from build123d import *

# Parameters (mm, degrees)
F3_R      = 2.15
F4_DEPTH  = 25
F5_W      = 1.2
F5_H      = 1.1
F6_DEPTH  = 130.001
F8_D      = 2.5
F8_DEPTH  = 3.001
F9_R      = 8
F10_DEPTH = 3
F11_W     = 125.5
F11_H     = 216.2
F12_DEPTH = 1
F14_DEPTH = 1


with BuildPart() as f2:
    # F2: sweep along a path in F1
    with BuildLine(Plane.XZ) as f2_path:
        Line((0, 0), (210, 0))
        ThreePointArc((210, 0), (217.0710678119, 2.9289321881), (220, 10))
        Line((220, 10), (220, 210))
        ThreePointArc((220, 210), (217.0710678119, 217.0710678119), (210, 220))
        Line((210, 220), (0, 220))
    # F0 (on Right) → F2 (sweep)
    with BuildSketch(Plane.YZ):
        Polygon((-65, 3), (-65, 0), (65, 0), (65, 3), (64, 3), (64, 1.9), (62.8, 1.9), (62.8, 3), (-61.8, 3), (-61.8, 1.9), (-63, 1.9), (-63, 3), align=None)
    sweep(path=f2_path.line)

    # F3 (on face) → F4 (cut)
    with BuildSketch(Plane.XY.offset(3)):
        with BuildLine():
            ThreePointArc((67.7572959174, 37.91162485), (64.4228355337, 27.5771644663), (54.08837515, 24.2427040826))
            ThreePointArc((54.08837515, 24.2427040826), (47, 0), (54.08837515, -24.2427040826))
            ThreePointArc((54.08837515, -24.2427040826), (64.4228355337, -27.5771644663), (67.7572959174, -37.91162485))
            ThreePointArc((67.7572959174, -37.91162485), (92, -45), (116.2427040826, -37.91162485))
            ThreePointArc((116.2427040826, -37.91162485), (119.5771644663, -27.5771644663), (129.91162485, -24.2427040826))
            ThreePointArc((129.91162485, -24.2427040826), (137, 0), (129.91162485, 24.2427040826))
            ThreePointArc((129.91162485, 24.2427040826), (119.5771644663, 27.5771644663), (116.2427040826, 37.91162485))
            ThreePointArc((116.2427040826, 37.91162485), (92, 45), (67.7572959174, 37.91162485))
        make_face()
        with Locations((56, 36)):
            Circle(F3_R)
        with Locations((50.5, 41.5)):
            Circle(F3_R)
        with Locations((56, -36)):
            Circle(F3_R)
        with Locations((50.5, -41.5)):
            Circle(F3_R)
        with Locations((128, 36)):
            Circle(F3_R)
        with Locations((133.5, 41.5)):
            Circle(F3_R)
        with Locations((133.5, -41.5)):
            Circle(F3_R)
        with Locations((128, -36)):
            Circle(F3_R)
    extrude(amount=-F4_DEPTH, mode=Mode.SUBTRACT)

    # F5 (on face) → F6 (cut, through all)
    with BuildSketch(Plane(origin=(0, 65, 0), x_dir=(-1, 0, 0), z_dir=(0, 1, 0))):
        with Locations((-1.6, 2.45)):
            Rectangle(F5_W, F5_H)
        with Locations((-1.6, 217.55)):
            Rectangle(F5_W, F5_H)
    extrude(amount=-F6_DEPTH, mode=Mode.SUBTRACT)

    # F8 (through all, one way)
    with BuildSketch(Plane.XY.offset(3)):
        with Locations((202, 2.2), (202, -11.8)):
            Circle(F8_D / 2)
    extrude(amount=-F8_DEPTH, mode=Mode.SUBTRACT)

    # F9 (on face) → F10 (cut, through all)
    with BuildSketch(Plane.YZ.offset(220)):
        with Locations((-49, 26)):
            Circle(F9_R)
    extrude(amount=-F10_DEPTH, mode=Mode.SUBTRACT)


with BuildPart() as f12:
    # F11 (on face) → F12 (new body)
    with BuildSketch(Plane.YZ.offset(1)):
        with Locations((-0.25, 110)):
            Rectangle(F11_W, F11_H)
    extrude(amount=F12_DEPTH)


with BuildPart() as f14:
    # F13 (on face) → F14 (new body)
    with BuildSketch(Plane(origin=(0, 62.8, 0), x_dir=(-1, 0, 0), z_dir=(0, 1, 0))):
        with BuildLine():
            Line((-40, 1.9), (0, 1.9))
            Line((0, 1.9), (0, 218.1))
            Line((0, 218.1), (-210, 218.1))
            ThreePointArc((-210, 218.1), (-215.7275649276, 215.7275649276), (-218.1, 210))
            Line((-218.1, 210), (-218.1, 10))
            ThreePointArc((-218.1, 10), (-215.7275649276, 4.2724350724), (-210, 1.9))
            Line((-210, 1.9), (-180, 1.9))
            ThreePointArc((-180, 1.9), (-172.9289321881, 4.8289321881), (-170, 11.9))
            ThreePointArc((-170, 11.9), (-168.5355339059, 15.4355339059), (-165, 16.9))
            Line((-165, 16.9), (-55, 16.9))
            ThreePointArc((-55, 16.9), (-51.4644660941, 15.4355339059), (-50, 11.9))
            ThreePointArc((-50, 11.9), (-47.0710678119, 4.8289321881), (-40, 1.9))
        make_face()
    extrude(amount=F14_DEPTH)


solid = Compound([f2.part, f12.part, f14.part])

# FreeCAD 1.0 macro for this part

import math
import FreeCAD as App
import Part
import Sketcher

V = App.Vector
Q = App.Units.Quantity


def add_polygon(sketch, points):
    """Adds a closed chain of lines whose ends are joined by coincident constraints."""
    first, n = sketch.GeometryCount, len(points)
    for a, b in zip(points, points[1:] + points[:1]):
        sketch.addGeometry(Part.LineSegment(App.Vector(*a, 0), App.Vector(*b, 0)), False)
    for i in range(n):
        sketch.addConstraint(Sketcher.Constraint("Coincident", first + i, 2, first + (i + 1) % n, 1))

doc = App.newDocument("Part")
body = doc.addObject("PartDesign::Body", "Body")

# Sketch on YZ plane
sketch1 = doc.addObject("Sketcher::SketchObject", "Sketch")
body.addObject(sketch1)
sketch1.AttachmentSupport = (doc.YZ_Plane, [""])
sketch1.MapMode = "FlatFace"
add_polygon(sketch1, [(-65, 3), (-65, 0), (65, 0), (65, 3), (64, 3), (64, 1.9), (62.8, 1.9), (62.8, 3), (-61.8, 3), (-61.8, 1.9), (-63, 1.9), (-63, 3)])  # lines 0-11
sketch1.addConstraint([
    Sketcher.Constraint("Vertical", 0),
    Sketcher.Constraint("Horizontal", 1),
    Sketcher.Constraint("Vertical", 2),
    Sketcher.Constraint("Horizontal", 3),
    Sketcher.Constraint("Vertical", 4),
    Sketcher.Constraint("Horizontal", 5),
    Sketcher.Constraint("Vertical", 6),
    Sketcher.Constraint("Horizontal", 7),
    Sketcher.Constraint("Vertical", 8),
    Sketcher.Constraint("Horizontal", 9),
    Sketcher.Constraint("Vertical", 10),
    Sketcher.Constraint("Horizontal", 11),
    Sketcher.Constraint("Symmetric", 0, 2, 1, 2, -1, 1),
    Sketcher.Constraint("Horizontal", 3, 2, 6, 2),
    Sketcher.Constraint("Horizontal", 5, 2, 8, 2),
    Sketcher.Constraint("Horizontal", 7, 2, 10, 2),
    Sketcher.Constraint("Equal", 5, 9),
    Sketcher.Constraint("DistanceX", 1, 1, 1, 2, Q("130 mm")),
    Sketcher.Constraint("DistanceX", 3, 2, 3, 1, Q("1 mm")),
    Sketcher.Constraint("DistanceX", 11, 2, 11, 1, Q("2 mm")),
    Sketcher.Constraint("DistanceY", 0, 2, 0, 1, Q("3 mm")),
    Sketcher.Constraint("DistanceX", 5, 2, 5, 1, Q("1.2 mm")),
    Sketcher.Constraint("DistanceY", 4, 2, 4, 1, Q("1.1 mm")),
])

# Sketch on XZ plane
sketch2 = doc.addObject("Sketcher::SketchObject", "Sketch001")
body.addObject(sketch2)
sketch2.AttachmentSupport = (doc.XZ_Plane, [""])
sketch2.MapMode = "FlatFace"
sketch2.addGeometry([
    Part.LineSegment(V(0, 0, 0), V(210, 0, 0)),  # 0
    Part.ArcOfCircle(Part.Circle(V(210, 10, 0), V(0, 0, 1), 10), math.radians(-90), math.radians(0)),  # 1
    Part.LineSegment(V(220, 10, 0), V(220, 210, 0)),  # 2
    Part.ArcOfCircle(Part.Circle(V(210, 210, 0), V(0, 0, 1), 10), math.radians(0), math.radians(90)),  # 3
    Part.LineSegment(V(210, 220, 0), V(0, 220, 0)),  # 4
], False)
sketch2.addConstraint([
    Sketcher.Constraint("Tangent", 0, 2, 1, 1),
    Sketcher.Constraint("Tangent", 1, 2, 2, 1),
    Sketcher.Constraint("Tangent", 2, 2, 3, 1),
    Sketcher.Constraint("Tangent", 3, 2, 4, 1),
    Sketcher.Constraint("Horizontal", 0),
    Sketcher.Constraint("Vertical", 2),
    Sketcher.Constraint("Horizontal", 4),
    Sketcher.Constraint("Coincident", 0, 1, -1, 1),
    Sketcher.Constraint("Equal", 1, 3),
    Sketcher.Constraint("PointOnObject", 4, 2, -2),
    Sketcher.Constraint("Radius", 1, Q("10 mm")),
    Sketcher.Constraint("DistanceX", 0, 1, 0, 2, Q("210 mm")),
    Sketcher.Constraint("DistanceY", 2, 1, 2, 2, Q("200 mm")),
])
doc.recompute()

additivepipe = doc.addObject("PartDesign::AdditivePipe", "AdditivePipe")
body.addObject(additivepipe)
additivepipe.Profile = sketch1
additivepipe.Spine = (sketch2, ["Edge1", "Edge2", "Edge3", "Edge4", "Edge5"])

# Sketch on XY plane
sketch3 = doc.addObject("Sketcher::SketchObject", "Sketch002")
body.addObject(sketch3)
sketch3.AttachmentSupport = (doc.XY_Plane, [""])
sketch3.MapMode = "FlatFace"
sketch3.AttachmentOffset = App.Placement(V(0, 0, 3), App.Rotation())
sketch3.addGeometry([
    Part.ArcOfCircle(Part.Circle(V(56, 36, 0), V(0, 0, 1), 11.911688), math.radians(-99.234939), math.radians(9.234939)),  # 0
    Part.ArcOfCircle(Part.Circle(V(92, 0, 0), V(0, 0, 1), 45), math.radians(147.402994), math.radians(212.597006)),  # 1
    Part.ArcOfCircle(Part.Circle(V(56, -36, 0), V(0, 0, 1), 11.911688), math.radians(-9.234939), math.radians(99.234939)),  # 2
    Part.ArcOfCircle(Part.Circle(V(92, 0, 0), V(0, 0, 1), 45), math.radians(-122.597006), math.radians(-57.402994)),  # 3
    Part.ArcOfCircle(Part.Circle(V(128, -36, 0), V(0, 0, 1), 11.911688), math.radians(80.765061), math.radians(189.234939)),  # 4
    Part.ArcOfCircle(Part.Circle(V(92, 0, 0), V(0, 0, 1), 45), math.radians(-32.597006), math.radians(32.597006)),  # 5
    Part.ArcOfCircle(Part.Circle(V(128, 36, 0), V(0, 0, 1), 11.911688), math.radians(170.765061), math.radians(279.234939)),  # 6
    Part.ArcOfCircle(Part.Circle(V(92, 0, 0), V(0, 0, 1), 45), math.radians(57.402994), math.radians(122.597006)),  # 7
    Part.Circle(V(56, 36, 0), V(0, 0, 1), 2.15),  # 8
    Part.Circle(V(50.5, 41.5, 0), V(0, 0, 1), 2.15),  # 9
    Part.Circle(V(56, -36, 0), V(0, 0, 1), 2.15),  # 10
    Part.Circle(V(50.5, -41.5, 0), V(0, 0, 1), 2.15),  # 11
    Part.Circle(V(128, 36, 0), V(0, 0, 1), 2.15),  # 12
    Part.Circle(V(133.5, 41.5, 0), V(0, 0, 1), 2.15),  # 13
    Part.Circle(V(133.5, -41.5, 0), V(0, 0, 1), 2.15),  # 14
    Part.Circle(V(128, -36, 0), V(0, 0, 1), 2.15),  # 15
], False)
sketch3.addConstraint([
    Sketcher.Constraint("Coincident", 0, 1, 1, 1),
    Sketcher.Constraint("Coincident", 1, 2, 2, 2),
    Sketcher.Constraint("Coincident", 2, 1, 3, 1),
    Sketcher.Constraint("Coincident", 3, 2, 4, 2),
    Sketcher.Constraint("Coincident", 4, 1, 5, 1),
    Sketcher.Constraint("Coincident", 5, 2, 6, 2),
    Sketcher.Constraint("Coincident", 6, 1, 7, 1),
    Sketcher.Constraint("Coincident", 7, 2, 0, 2),
    Sketcher.Constraint("Coincident", 3, 3, 1, 3),
    Sketcher.Constraint("Coincident", 5, 3, 1, 3),
    Sketcher.Constraint("Coincident", 7, 3, 1, 3),
    Sketcher.Constraint("Coincident", 8, 3, 0, 3),
    Sketcher.Constraint("Coincident", 10, 3, 2, 3),
    Sketcher.Constraint("Coincident", 12, 3, 6, 3),
    Sketcher.Constraint("Coincident", 15, 3, 4, 3),
    Sketcher.Constraint("Equal", 0, 2),
    Sketcher.Constraint("Equal", 1, 3),
    Sketcher.Constraint("Equal", 2, 4),
    Sketcher.Constraint("Equal", 3, 5),
    Sketcher.Constraint("Equal", 4, 6),
    Sketcher.Constraint("Equal", 5, 7),
    Sketcher.Constraint("Equal", 8, 9),
    Sketcher.Constraint("Equal", 9, 10),
    Sketcher.Constraint("Equal", 10, 11),
    Sketcher.Constraint("Equal", 11, 12),
    Sketcher.Constraint("Equal", 12, 13),
    Sketcher.Constraint("Equal", 13, 14),
    Sketcher.Constraint("Equal", 14, 15),
    Sketcher.Constraint("Symmetric", 0, 3, 2, 3, -1),
    Sketcher.Constraint("Symmetric", 4, 3, 6, 3, -1),
    Sketcher.Constraint("Symmetric", 9, 3, 11, 3, -1),
    Sketcher.Constraint("Symmetric", 13, 3, 14, 3, -1),
    Sketcher.Constraint("PointOnObject", 1, 3, -1),
    Sketcher.Constraint("Horizontal", 2, 3, 4, 3),
    Sketcher.Constraint("Horizontal", 9, 3, 13, 3),
    Sketcher.Constraint("Horizontal", 2, 1, 3, 2),
    Sketcher.Constraint("Radius", 1, Q("45 mm")),
    Sketcher.Constraint("Diameter", 8, Q("4.3 mm")),
    Sketcher.Constraint("DistanceX", -1, 1, 0, 3, Q("56 mm")),
    Sketcher.Constraint("DistanceY", -1, 1, 0, 3, Q("36 mm")),
    Sketcher.Constraint("DistanceX", -1, 1, 1, 3, Q("92 mm")),
    Sketcher.Constraint("DistanceX", -1, 1, 9, 3, Q("50.5 mm")),
    Sketcher.Constraint("DistanceY", -1, 1, 9, 3, Q("41.5 mm")),
    Sketcher.Constraint("DistanceX", -1, 1, 13, 3, Q("133.5 mm")),
    Sketcher.Constraint("Radius", 0, Q("11.911688 mm")),
])
pocket1 = doc.addObject("PartDesign::Pocket", "Pocket")
body.addObject(pocket1)
pocket1.Profile = sketch3
pocket1.Length = 25

# Sketch on XZ plane
sketch4 = doc.addObject("Sketcher::SketchObject", "Sketch003")
body.addObject(sketch4)
sketch4.AttachmentSupport = (doc.XZ_Plane, [""])
sketch4.MapMode = "FlatFace"
sketch4.AttachmentOffset = App.Placement(V(0, 0, -65), App.Rotation())
add_polygon(sketch4, [(2.2, 3), (2.2, 1.9), (1, 1.9), (1, 3)])  # lines 0-3
add_polygon(sketch4, [(2.2, 218.1), (2.2, 217), (1, 217), (1, 218.1)])  # lines 4-7
sketch4.addConstraint([
    Sketcher.Constraint("Vertical", 0),
    Sketcher.Constraint("Horizontal", 1),
    Sketcher.Constraint("Vertical", 2),
    Sketcher.Constraint("Horizontal", 3),
    Sketcher.Constraint("Vertical", 4),
    Sketcher.Constraint("Horizontal", 5),
    Sketcher.Constraint("Vertical", 6),
    Sketcher.Constraint("Horizontal", 7),
    Sketcher.Constraint("Vertical", 3, 2, 4, 2),
    Sketcher.Constraint("Vertical", 2, 2, 5, 2),
    Sketcher.Constraint("Equal", 2, 4),
    Sketcher.Constraint("DistanceX", 1, 2, 1, 1, Q("1.2 mm")),
    Sketcher.Constraint("DistanceY", 0, 2, 0, 1, Q("1.1 mm")),
    Sketcher.Constraint("DistanceX", -1, 1, 1, 2, Q("1 mm")),
    Sketcher.Constraint("DistanceY", -1, 1, 2, 2, Q("3 mm")),
    Sketcher.Constraint("DistanceY", -1, 1, 4, 2, Q("217 mm")),
])
pocket2 = doc.addObject("PartDesign::Pocket", "Pocket001")
body.addObject(pocket2)
pocket2.Profile = sketch4
pocket2.Type = "ThroughAll"
pocket2.Reversed = True

# Sketch on XY plane
sketch5 = doc.addObject("Sketcher::SketchObject", "Sketch004")
body.addObject(sketch5)
sketch5.AttachmentSupport = (doc.XY_Plane, [""])
sketch5.MapMode = "FlatFace"
sketch5.AttachmentOffset = App.Placement(V(0, 0, 3), App.Rotation())
sketch5.addGeometry([
    Part.Circle(V(202, -11.8, 0), V(0, 0, 1), 1.25),
    Part.Circle(V(202, 2.2, 0), V(0, 0, 1), 1.25),
], False)
sketch5.addConstraint([
    Sketcher.Constraint("Equal", 0, 1),
    Sketcher.Constraint("Vertical", 0, 3, 1, 3),
    Sketcher.Constraint("Diameter", 0, Q("2.5 mm")),
    Sketcher.Constraint("DistanceX", -1, 1, 0, 3, Q("202 mm")),
    Sketcher.Constraint("DistanceY", 0, 3, 1, 3, Q("14 mm")),
    Sketcher.Constraint("DistanceY", 0, 3, -1, 1, Q("11.8 mm")),
])
pocket3 = doc.addObject("PartDesign::Pocket", "Pocket002")
body.addObject(pocket3)
pocket3.Profile = sketch5
pocket3.Type = "ThroughAll"

# Sketch on YZ plane
sketch6 = doc.addObject("Sketcher::SketchObject", "Sketch005")
body.addObject(sketch6)
sketch6.AttachmentSupport = (doc.YZ_Plane, [""])
sketch6.MapMode = "FlatFace"
sketch6.AttachmentOffset = App.Placement(V(0, 0, 220), App.Rotation())
sketch6.addGeometry(Part.Circle(V(-49, 26, 0), V(0, 0, 1), 8), False)
sketch6.addConstraint([
    Sketcher.Constraint("Diameter", 0, Q("16 mm")),
    Sketcher.Constraint("DistanceX", 0, 3, -1, 1, Q("49 mm")),
    Sketcher.Constraint("DistanceY", -1, 1, 0, 3, Q("26 mm")),
])
pocket4 = doc.addObject("PartDesign::Pocket", "Pocket003")
body.addObject(pocket4)
pocket4.Profile = sketch6
pocket4.Type = "ThroughAll"
body2 = doc.addObject("PartDesign::Body", "Body001")

# Sketch on YZ plane
sketch7 = doc.addObject("Sketcher::SketchObject", "Sketch006")
body2.addObject(sketch7)
sketch7.AttachmentSupport = (doc.getObject("YZ_Plane001"), [""])
sketch7.MapMode = "FlatFace"
sketch7.AttachmentOffset = App.Placement(V(0, 0, 1), App.Rotation())
add_polygon(sketch7, [(-63, 218.1), (-63, 1.9), (62.5, 1.9), (62.5, 218.1)])  # lines 0-3
sketch7.addConstraint([
    Sketcher.Constraint("Vertical", 0),
    Sketcher.Constraint("Horizontal", 1),
    Sketcher.Constraint("Vertical", 2),
    Sketcher.Constraint("Horizontal", 3),
    Sketcher.Constraint("DistanceX", 1, 1, 1, 2, Q("125.5 mm")),
    Sketcher.Constraint("DistanceY", 0, 2, 0, 1, Q("216.2 mm")),
    Sketcher.Constraint("DistanceX", 0, 2, -1, 1, Q("63 mm")),
    Sketcher.Constraint("DistanceY", -1, 1, 0, 2, Q("1.9 mm")),
])
pad1 = doc.addObject("PartDesign::Pad", "Pad")
body2.addObject(pad1)
pad1.Profile = sketch7
pad1.Length = 1
body3 = doc.addObject("PartDesign::Body", "Body002")

# Sketch on XZ plane
sketch8 = doc.addObject("Sketcher::SketchObject", "Sketch007")
body3.addObject(sketch8)
sketch8.AttachmentSupport = (doc.getObject("XZ_Plane002"), [""])
sketch8.MapMode = "FlatFace"
sketch8.AttachmentOffset = App.Placement(V(0, 0, -62.8), App.Rotation())
sketch8.addGeometry([
    Part.LineSegment(V(40, 1.9, 0), V(0, 1.9, 0)),  # 0
    Part.LineSegment(V(0, 1.9, 0), V(0, 218.1, 0)),  # 1
    Part.LineSegment(V(0, 218.1, 0), V(210, 218.1, 0)),  # 2
    Part.ArcOfCircle(Part.Circle(V(210, 210, 0), V(0, 0, 1), 8.1), math.radians(0), math.radians(90)),  # 3
    Part.LineSegment(V(218.1, 210, 0), V(218.1, 10, 0)),  # 4
    Part.ArcOfCircle(Part.Circle(V(210, 10, 0), V(0, 0, 1), 8.1), math.radians(-90), math.radians(0)),  # 5
    Part.LineSegment(V(210, 1.9, 0), V(180, 1.9, 0)),  # 6
    Part.ArcOfCircle(Part.Circle(V(180, 11.9, 0), V(0, 0, 1), 10), math.radians(180), math.radians(270)),  # 7
    Part.ArcOfCircle(Part.Circle(V(165, 11.9, 0), V(0, 0, 1), 5), math.radians(0), math.radians(90)),  # 8
    Part.LineSegment(V(165, 16.9, 0), V(55, 16.9, 0)),  # 9
    Part.ArcOfCircle(Part.Circle(V(55, 11.9, 0), V(0, 0, 1), 5), math.radians(90), math.radians(180)),  # 10
    Part.ArcOfCircle(Part.Circle(V(40, 11.9, 0), V(0, 0, 1), 10), math.radians(-90), math.radians(0)),  # 11
], False)
sketch8.addConstraint([
    Sketcher.Constraint("Coincident", 0, 2, 1, 1),
    Sketcher.Constraint("Coincident", 1, 2, 2, 1),
    Sketcher.Constraint("Tangent", 2, 2, 3, 2),
    Sketcher.Constraint("Tangent", 3, 1, 4, 1),
    Sketcher.Constraint("Tangent", 4, 2, 5, 2),
    Sketcher.Constraint("Tangent", 5, 1, 6, 1),
    Sketcher.Constraint("Tangent", 6, 2, 7, 2),
    Sketcher.Constraint("Tangent", 7, 1, 8, 1),
    Sketcher.Constraint("Tangent", 8, 2, 9, 1),
    Sketcher.Constraint("Tangent", 9, 2, 10, 1),
    Sketcher.Constraint("Tangent", 10, 2, 11, 2),
    Sketcher.Constraint("Tangent", 11, 1, 0, 1),
    Sketcher.Constraint("Horizontal", 0),
    Sketcher.Constraint("Vertical", 1),
    Sketcher.Constraint("Horizontal", 2),
    Sketcher.Constraint("Vertical", 4),
    Sketcher.Constraint("Horizontal", 6),
    Sketcher.Constraint("Horizontal", 9),
    Sketcher.Constraint("Equal", 3, 5),
    Sketcher.Constraint("Equal", 8, 10),
    Sketcher.Constraint("Equal", 7, 11),
    Sketcher.Constraint("PointOnObject", 0, 2, -2),
    Sketcher.Constraint("Horizontal", 7, 3, 8, 3),
    Sketcher.Constraint("Horizontal", 10, 3, 11, 3),
    Sketcher.Constraint("Radius", 7, Q("10 mm")),
    Sketcher.Constraint("Radius", 8, Q("5 mm")),
    Sketcher.Constraint("Radius", 3, Q("8.1 mm")),
    Sketcher.Constraint("DistanceX", 0, 2, 0, 1, Q("40 mm")),
    Sketcher.Constraint("DistanceX", 2, 1, 2, 2, Q("210 mm")),
    Sketcher.Constraint("DistanceX", 6, 2, 6, 1, Q("30 mm")),
    Sketcher.Constraint("DistanceY", 4, 2, 4, 1, Q("200 mm")),
    Sketcher.Constraint("DistanceY", -1, 1, 3, 3, Q("210 mm")),
])
pad2 = doc.addObject("PartDesign::Pad", "Pad001")
body3.addObject(pad2)
pad2.Profile = sketch8
pad2.Length = 1
pad2.Reversed = True

doc.recompute()
